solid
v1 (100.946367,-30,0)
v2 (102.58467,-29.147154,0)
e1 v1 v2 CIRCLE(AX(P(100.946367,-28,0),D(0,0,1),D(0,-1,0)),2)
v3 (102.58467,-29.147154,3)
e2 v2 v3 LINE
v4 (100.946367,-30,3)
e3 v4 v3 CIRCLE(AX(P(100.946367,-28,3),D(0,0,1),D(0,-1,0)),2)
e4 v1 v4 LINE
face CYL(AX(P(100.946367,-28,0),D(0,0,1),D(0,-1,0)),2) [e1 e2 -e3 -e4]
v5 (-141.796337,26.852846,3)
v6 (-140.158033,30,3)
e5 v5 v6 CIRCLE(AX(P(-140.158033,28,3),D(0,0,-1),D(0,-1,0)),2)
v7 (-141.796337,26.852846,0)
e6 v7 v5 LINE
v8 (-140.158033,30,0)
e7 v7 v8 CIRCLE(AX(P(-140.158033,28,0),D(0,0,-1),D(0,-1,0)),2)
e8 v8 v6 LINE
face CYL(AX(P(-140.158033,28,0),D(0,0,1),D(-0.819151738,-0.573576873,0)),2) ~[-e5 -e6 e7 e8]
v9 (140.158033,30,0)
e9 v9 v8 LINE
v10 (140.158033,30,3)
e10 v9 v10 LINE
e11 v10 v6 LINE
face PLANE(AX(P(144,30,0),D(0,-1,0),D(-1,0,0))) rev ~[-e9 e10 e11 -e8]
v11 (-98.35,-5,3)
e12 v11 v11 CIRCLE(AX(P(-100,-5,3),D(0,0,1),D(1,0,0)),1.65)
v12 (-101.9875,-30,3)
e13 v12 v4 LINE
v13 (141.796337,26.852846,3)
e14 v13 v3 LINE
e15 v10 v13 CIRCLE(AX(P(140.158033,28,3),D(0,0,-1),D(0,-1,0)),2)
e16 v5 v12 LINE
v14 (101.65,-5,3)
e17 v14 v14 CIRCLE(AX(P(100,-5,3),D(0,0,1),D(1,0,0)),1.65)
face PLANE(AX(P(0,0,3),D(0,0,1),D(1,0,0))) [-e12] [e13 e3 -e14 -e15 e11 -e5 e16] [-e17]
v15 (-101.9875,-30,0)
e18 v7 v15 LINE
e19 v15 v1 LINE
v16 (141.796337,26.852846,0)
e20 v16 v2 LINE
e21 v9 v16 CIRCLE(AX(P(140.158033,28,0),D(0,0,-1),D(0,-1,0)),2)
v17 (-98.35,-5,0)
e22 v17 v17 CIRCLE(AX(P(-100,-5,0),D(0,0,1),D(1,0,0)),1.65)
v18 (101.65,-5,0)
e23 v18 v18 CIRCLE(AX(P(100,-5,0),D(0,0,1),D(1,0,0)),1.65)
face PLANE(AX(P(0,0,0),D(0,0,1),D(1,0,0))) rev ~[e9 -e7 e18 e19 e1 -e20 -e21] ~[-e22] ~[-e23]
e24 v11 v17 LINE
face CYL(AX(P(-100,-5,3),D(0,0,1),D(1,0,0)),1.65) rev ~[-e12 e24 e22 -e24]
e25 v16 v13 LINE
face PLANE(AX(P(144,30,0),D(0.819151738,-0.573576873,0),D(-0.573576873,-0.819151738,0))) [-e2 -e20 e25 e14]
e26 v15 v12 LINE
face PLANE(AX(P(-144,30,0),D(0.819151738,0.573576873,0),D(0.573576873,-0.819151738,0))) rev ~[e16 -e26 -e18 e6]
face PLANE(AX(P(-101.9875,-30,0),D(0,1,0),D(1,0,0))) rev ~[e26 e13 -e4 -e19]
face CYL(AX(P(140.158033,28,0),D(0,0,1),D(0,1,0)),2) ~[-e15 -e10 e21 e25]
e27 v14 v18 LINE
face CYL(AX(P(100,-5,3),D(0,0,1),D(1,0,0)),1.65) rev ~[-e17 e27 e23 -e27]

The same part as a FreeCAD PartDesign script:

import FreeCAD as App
import Part
import Sketcher

V = App.Vector
Q = App.Units.Quantity


def edges_at(feature, points):
    """Names of the edges that pass closest to the given points."""
    edges = feature.Shape.Edges
    near = lambda p: min(range(len(edges)), key=lambda i: edges[i].distToShape(Part.Vertex(*p))[0])
    return sorted({f"Edge{near(p) + 1}" for p in points})


def add_polygon(sketch, points):
    """Adds a closed chain of lines whose ends are joined by coincident constraints."""
    first, n = sketch.GeometryCount, len(points)
    for a, b in zip(points, points[1:] + points[:1]):
        sketch.addGeometry(Part.LineSegment(App.Vector(*a, 0), App.Vector(*b, 0)), False)
    for i in range(n):
        sketch.addConstraint(Sketcher.Constraint("Coincident", first + i, 2, first + (i + 1) % n, 1))

doc = App.newDocument("Part")
body = doc.addObject("PartDesign::Body", "Body")

sketch1 = body.newObject("Sketcher::SketchObject", "Sketch")
sketch1.AttachmentSupport = (doc.getObject("XY_Plane"), [""])
sketch1.MapMode = "FlatFace"
add_polygon(sketch1, [(-144, 30), (-102, -30), (102, -30), (144, 30)])
sketch1.addConstraint(Sketcher.Constraint("Horizontal", 1))
sketch1.addConstraint(Sketcher.Constraint("Horizontal", 3))
sketch1.addConstraint(Sketcher.Constraint("Equal", 0, 2))
sketch1.addConstraint(Sketcher.Constraint("DistanceX", 3, 2, 3, 1, Q("288 mm")))
sketch1.addConstraint(Sketcher.Constraint("Angle", 0, Q("-55 deg")))
sketch1.addConstraint(Sketcher.Constraint("DistanceY", 1, 2, 2, 2, Q("60 mm")))
sketch1.addConstraint(Sketcher.Constraint("DistanceY", 0, 2, -1, 1, Q("30 mm")))
sketch1.addConstraint(Sketcher.Constraint("DistanceX", -1, 1, 2, 2, Q("144 mm")))
pad1 = body.newObject("PartDesign::Pad", "Pad")
pad1.Profile = sketch1
pad1.Length = 3

sketch2 = body.newObject("Sketcher::SketchObject", "Sketch001")
sketch2.AttachmentSupport = (doc.getObject("XY_Plane"), [""])
sketch2.MapMode = "FlatFace"
sketch2.AttachmentOffset = App.Placement(V(0, 0, 3), App.Rotation())
sketch2.addGeometry(Part.Circle(V(-100, -5, 0), V(0, 0, 1), 1.6), False)
sketch2.addGeometry(Part.Circle(V(100, -5, 0), V(0, 0, 1), 1.6), False)
sketch2.addConstraint(Sketcher.Constraint("Equal", 0, 1))
sketch2.addConstraint(Sketcher.Constraint("Symmetric", 0, 3, 1, 3, -2))
sketch2.addConstraint(Sketcher.Constraint("Diameter", 0, Q("3.3 mm")))
sketch2.addConstraint(Sketcher.Constraint("DistanceX", 0, 3, -1, 1, Q("100 mm")))
sketch2.addConstraint(Sketcher.Constraint("DistanceY", 0, 3, -1, 1, Q("5 mm")))
pocket1 = body.newObject("PartDesign::Pocket", "Pocket")
pocket1.Profile = sketch2
pocket1.Type = "ThroughAll"
doc.recompute()

fillet = body.newObject("PartDesign::Fillet", "Fillet")
fillet.Base = (pocket1, edges_at(pocket1, [(-144, 30, 1.5), (101.987, -30, 1.5), (144, 30, 1.5)]))
fillet.Radius = 2

doc.recompute()
